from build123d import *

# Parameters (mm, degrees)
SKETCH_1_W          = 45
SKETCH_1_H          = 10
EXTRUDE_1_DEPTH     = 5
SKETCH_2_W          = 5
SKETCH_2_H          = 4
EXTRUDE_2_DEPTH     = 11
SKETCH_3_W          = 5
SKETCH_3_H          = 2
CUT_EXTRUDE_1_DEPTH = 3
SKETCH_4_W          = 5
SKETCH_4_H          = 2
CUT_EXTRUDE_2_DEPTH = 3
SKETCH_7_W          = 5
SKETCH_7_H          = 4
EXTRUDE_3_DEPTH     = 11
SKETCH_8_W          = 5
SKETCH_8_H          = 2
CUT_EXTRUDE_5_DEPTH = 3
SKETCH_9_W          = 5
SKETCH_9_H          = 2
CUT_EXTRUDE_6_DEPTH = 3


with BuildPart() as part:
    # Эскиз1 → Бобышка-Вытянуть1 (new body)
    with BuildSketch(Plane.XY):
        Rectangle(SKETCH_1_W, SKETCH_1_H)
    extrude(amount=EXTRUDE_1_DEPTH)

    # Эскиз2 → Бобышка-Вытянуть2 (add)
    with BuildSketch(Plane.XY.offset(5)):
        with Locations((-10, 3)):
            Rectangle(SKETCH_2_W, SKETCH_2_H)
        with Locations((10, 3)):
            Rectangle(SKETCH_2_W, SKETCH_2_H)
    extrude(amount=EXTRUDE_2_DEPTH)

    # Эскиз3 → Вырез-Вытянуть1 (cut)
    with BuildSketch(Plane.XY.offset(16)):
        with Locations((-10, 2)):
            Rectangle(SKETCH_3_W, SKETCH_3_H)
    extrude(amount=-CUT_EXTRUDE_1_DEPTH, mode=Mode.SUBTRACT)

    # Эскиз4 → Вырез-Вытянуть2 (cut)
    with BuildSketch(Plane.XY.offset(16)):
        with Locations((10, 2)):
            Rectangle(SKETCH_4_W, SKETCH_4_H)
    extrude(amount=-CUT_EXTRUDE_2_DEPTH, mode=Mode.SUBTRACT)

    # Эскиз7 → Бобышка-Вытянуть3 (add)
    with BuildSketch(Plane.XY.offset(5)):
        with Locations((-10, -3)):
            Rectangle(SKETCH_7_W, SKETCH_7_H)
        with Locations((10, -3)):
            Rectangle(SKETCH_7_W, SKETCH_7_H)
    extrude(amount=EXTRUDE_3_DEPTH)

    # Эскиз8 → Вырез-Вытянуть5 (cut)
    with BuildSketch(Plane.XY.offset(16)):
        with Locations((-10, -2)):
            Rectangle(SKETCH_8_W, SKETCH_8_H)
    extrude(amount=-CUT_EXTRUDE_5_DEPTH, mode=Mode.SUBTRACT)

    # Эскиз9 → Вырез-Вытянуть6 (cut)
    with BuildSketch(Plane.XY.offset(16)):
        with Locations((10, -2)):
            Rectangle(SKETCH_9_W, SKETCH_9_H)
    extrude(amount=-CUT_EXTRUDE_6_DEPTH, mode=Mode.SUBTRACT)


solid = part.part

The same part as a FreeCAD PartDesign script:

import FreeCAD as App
import Part
import Sketcher

V = App.Vector
Q = App.Units.Quantity


def add_polygon(sketch, points):
    """Adds a closed chain of lines whose ends are joined by coincident constraints."""
    first, n = sketch.GeometryCount, len(points)
    for a, b in zip(points, points[1:] + points[:1]):
        sketch.addGeometry(Part.LineSegment(App.Vector(*a, 0), App.Vector(*b, 0)), False)
    for i in range(n):
        sketch.addConstraint(Sketcher.Constraint("Coincident", first + i, 2, first + (i + 1) % n, 1))

doc = App.newDocument("Part")
body = doc.addObject("PartDesign::Body", "Body")

# Sketch on XY plane
sketch1 = doc.addObject("Sketcher::SketchObject", "Sketch")
body.addObject(sketch1)
sketch1.AttachmentSupport = (doc.XY_Plane, [""])
sketch1.MapMode = "FlatFace"
add_polygon(sketch1, [(-22.5, 5), (-22.5, -5), (22.5, -5), (22.5, 5)])  # lines 0-3
sketch1.addConstraint(Sketcher.Constraint("Vertical", 0))
sketch1.addConstraint(Sketcher.Constraint("Horizontal", 1))
sketch1.addConstraint(Sketcher.Constraint("Vertical", 2))
sketch1.addConstraint(Sketcher.Constraint("Horizontal", 3))
sketch1.addConstraint(Sketcher.Constraint("Symmetric", 0, 2, 2, 2, -1, 1))
sketch1.addConstraint(Sketcher.Constraint("DistanceX", 1, 1, 1, 2, Q("45 mm")))
sketch1.addConstraint(Sketcher.Constraint("DistanceY", 0, 2, 0, 1, Q("10 mm")))
pad1 = doc.addObject("PartDesign::Pad", "Pad")
body.addObject(pad1)
pad1.Profile = sketch1
pad1.Length = 5

# Sketch on XY plane
sketch2 = doc.addObject("Sketcher::SketchObject", "Sketch001")
body.addObject(sketch2)
sketch2.AttachmentSupport = (doc.XY_Plane, [""])
sketch2.MapMode = "FlatFace"
sketch2.AttachmentOffset = App.Placement(V(0, 0, 5), App.Rotation())
add_polygon(sketch2, [(-12.5, 5), (-12.5, 1), (-7.5, 1), (-7.5, 5)])  # lines 0-3
add_polygon(sketch2, [(7.5, 5), (7.5, 1), (12.5, 1), (12.5, 5)])  # lines 4-7
sketch2.addConstraint(Sketcher.Constraint("Vertical", 0))
sketch2.addConstraint(Sketcher.Constraint("Horizontal", 1))
sketch2.addConstraint(Sketcher.Constraint("Vertical", 2))
sketch2.addConstraint(Sketcher.Constraint("Horizontal", 3))
sketch2.addConstraint(Sketcher.Constraint("Vertical", 4))
sketch2.addConstraint(Sketcher.Constraint("Horizontal", 5))
sketch2.addConstraint(Sketcher.Constraint("Vertical", 6))
sketch2.addConstraint(Sketcher.Constraint("Horizontal", 7))
sketch2.addConstraint(Sketcher.Constraint("Symmetric", 1, 2, 4, 2, -2))
sketch2.addConstraint(Sketcher.Constraint("Symmetric", 3, 2, 6, 2, -2))
sketch2.addConstraint(Sketcher.Constraint("DistanceX", 1, 1, 1, 2, Q("5 mm")))
sketch2.addConstraint(Sketcher.Constraint("DistanceY", 0, 2, 0, 1, Q("4 mm")))
sketch2.addConstraint(Sketcher.Constraint("DistanceY", -1, 1, 0, 2, Q("1 mm")))
sketch2.addConstraint(Sketcher.Constraint("DistanceX", 1, 2, 4, 2, Q("15 mm")))
pad2 = doc.addObject("PartDesign::Pad", "Pad001")
body.addObject(pad2)
pad2.Profile = sketch2
pad2.Length = 11

# Sketch on XY plane
sketch3 = doc.addObject("Sketcher::SketchObject", "Sketch002")
body.addObject(sketch3)
sketch3.AttachmentSupport = (doc.XY_Plane, [""])
sketch3.MapMode = "FlatFace"
sketch3.AttachmentOffset = App.Placement(V(0, 0, 16), App.Rotation())
add_polygon(sketch3, [(-12.5, 3), (-12.5, 1), (-7.5, 1), (-7.5, 3)])  # lines 0-3
sketch3.addConstraint(Sketcher.Constraint("Vertical", 0))
sketch3.addConstraint(Sketcher.Constraint("Horizontal", 1))
sketch3.addConstraint(Sketcher.Constraint("Vertical", 2))
sketch3.addConstraint(Sketcher.Constraint("Horizontal", 3))
sketch3.addConstraint(Sketcher.Constraint("DistanceX", 1, 1, 1, 2, Q("5 mm")))
sketch3.addConstraint(Sketcher.Constraint("DistanceY", 0, 2, 0, 1, Q("2 mm")))
sketch3.addConstraint(Sketcher.Constraint("DistanceY", -1, 1, 0, 2, Q("1 mm")))
sketch3.addConstraint(Sketcher.Constraint("DistanceX", 0, 2, -1, 1, Q("12.5 mm")))
pocket1 = doc.addObject("PartDesign::Pocket", "Pocket")
body.addObject(pocket1)
pocket1.Profile = sketch3
pocket1.Length = 3

# Sketch on XY plane
sketch4 = doc.addObject("Sketcher::SketchObject", "Sketch003")
body.addObject(sketch4)
sketch4.AttachmentSupport = (doc.XY_Plane, [""])
sketch4.MapMode = "FlatFace"
sketch4.AttachmentOffset = App.Placement(V(0, 0, 16), App.Rotation())
add_polygon(sketch4, [(7.5, 3), (7.5, 1), (12.5, 1), (12.5, 3)])  # lines 0-3
sketch4.addConstraint(Sketcher.Constraint("Vertical", 0))
sketch4.addConstraint(Sketcher.Constraint("Horizontal", 1))
sketch4.addConstraint(Sketcher.Constraint("Vertical", 2))
sketch4.addConstraint(Sketcher.Constraint("Horizontal", 3))
sketch4.addConstraint(Sketcher.Constraint("DistanceX", 1, 1, 1, 2, Q("5 mm")))
sketch4.addConstraint(Sketcher.Constraint("DistanceY", 0, 2, 0, 1, Q("2 mm")))
sketch4.addConstraint(Sketcher.Constraint("DistanceY", -1, 1, 0, 2, Q("1 mm")))
sketch4.addConstraint(Sketcher.Constraint("DistanceX", -1, 1, 0, 2, Q("7.5 mm")))
pocket2 = doc.addObject("PartDesign::Pocket", "Pocket001")
body.addObject(pocket2)
pocket2.Profile = sketch4
pocket2.Length = 3

# Sketch on XY plane
sketch5 = doc.addObject("Sketcher::SketchObject", "Sketch004")
body.addObject(sketch5)
sketch5.AttachmentSupport = (doc.XY_Plane, [""])
sketch5.MapMode = "FlatFace"
sketch5.AttachmentOffset = App.Placement(V(0, 0, 5), App.Rotation())
add_polygon(sketch5, [(-12.5, -1), (-12.5, -5), (-7.5, -5), (-7.5, -1)])  # lines 0-3
add_polygon(sketch5, [(7.5, -1), (7.5, -5), (12.5, -5), (12.5, -1)])  # lines 4-7
sketch5.addConstraint(Sketcher.Constraint("Vertical", 0))
sketch5.addConstraint(Sketcher.Constraint("Horizontal", 1))
sketch5.addConstraint(Sketcher.Constraint("Vertical", 2))
sketch5.addConstraint(Sketcher.Constraint("Horizontal", 3))
sketch5.addConstraint(Sketcher.Constraint("Vertical", 4))
sketch5.addConstraint(Sketcher.Constraint("Horizontal", 5))
sketch5.addConstraint(Sketcher.Constraint("Vertical", 6))
sketch5.addConstraint(Sketcher.Constraint("Horizontal", 7))
sketch5.addConstraint(Sketcher.Constraint("Symmetric", 1, 2, 4, 2, -2))
sketch5.addConstraint(Sketcher.Constraint("Symmetric", 3, 2, 6, 2, -2))
sketch5.addConstraint(Sketcher.Constraint("DistanceX", 1, 1, 1, 2, Q("5 mm")))
sketch5.addConstraint(Sketcher.Constraint("DistanceY", 0, 2, 0, 1, Q("4 mm")))
sketch5.addConstraint(Sketcher.Constraint("DistanceY", 0, 2, -1, 1, Q("5 mm")))
sketch5.addConstraint(Sketcher.Constraint("DistanceX", 1, 2, 4, 2, Q("15 mm")))
pad3 = doc.addObject("PartDesign::Pad", "Pad002")
body.addObject(pad3)
pad3.Profile = sketch5
pad3.Length = 11

# Sketch on XY plane
sketch6 = doc.addObject("Sketcher::SketchObject", "Sketch005")
body.addObject(sketch6)
sketch6.AttachmentSupport = (doc.XY_Plane, [""])
sketch6.MapMode = "FlatFace"
sketch6.AttachmentOffset = App.Placement(V(0, 0, 16), App.Rotation())
add_polygon(sketch6, [(-12.5, -1), (-12.5, -3), (-7.5, -3), (-7.5, -1)])  # lines 0-3
sketch6.addConstraint(Sketcher.Constraint("Vertical", 0))
sketch6.addConstraint(Sketcher.Constraint("Horizontal", 1))
sketch6.addConstraint(Sketcher.Constraint("Vertical", 2))
sketch6.addConstraint(Sketcher.Constraint("Horizontal", 3))
sketch6.addConstraint(Sketcher.Constraint("DistanceX", 1, 1, 1, 2, Q("5 mm")))
sketch6.addConstraint(Sketcher.Constraint("DistanceY", 0, 2, 0, 1, Q("2 mm")))
sketch6.addConstraint(Sketcher.Constraint("DistanceY", 0, 2, -1, 1, Q("3 mm")))
sketch6.addConstraint(Sketcher.Constraint("DistanceX", 0, 2, -1, 1, Q("12.5 mm")))
pocket3 = doc.addObject("PartDesign::Pocket", "Pocket002")
body.addObject(pocket3)
pocket3.Profile = sketch6
pocket3.Length = 3

# Sketch on XY plane
sketch7 = doc.addObject("Sketcher::SketchObject", "Sketch006")
body.addObject(sketch7)
sketch7.AttachmentSupport = (doc.XY_Plane, [""])
sketch7.MapMode = "FlatFace"
sketch7.AttachmentOffset = App.Placement(V(0, 0, 16), App.Rotation())
add_polygon(sketch7, [(7.5, -1), (7.5, -3), (12.5, -3), (12.5, -1)])  # lines 0-3
sketch7.addConstraint(Sketcher.Constraint("Vertical", 0))
sketch7.addConstraint(Sketcher.Constraint("Horizontal", 1))
sketch7.addConstraint(Sketcher.Constraint("Vertical", 2))
sketch7.addConstraint(Sketcher.Constraint("Horizontal", 3))
sketch7.addConstraint(Sketcher.Constraint("DistanceX", 1, 1, 1, 2, Q("5 mm")))
sketch7.addConstraint(Sketcher.Constraint("DistanceY", 0, 2, 0, 1, Q("2 mm")))
sketch7.addConstraint(Sketcher.Constraint("DistanceY", 0, 2, -1, 1, Q("3 mm")))
sketch7.addConstraint(Sketcher.Constraint("DistanceX", -1, 1, 0, 2, Q("7.5 mm")))
pocket4 = doc.addObject("PartDesign::Pocket", "Pocket003")
body.addObject(pocket4)
pocket4.Profile = sketch7
pocket4.Length = 3

doc.recompute()
